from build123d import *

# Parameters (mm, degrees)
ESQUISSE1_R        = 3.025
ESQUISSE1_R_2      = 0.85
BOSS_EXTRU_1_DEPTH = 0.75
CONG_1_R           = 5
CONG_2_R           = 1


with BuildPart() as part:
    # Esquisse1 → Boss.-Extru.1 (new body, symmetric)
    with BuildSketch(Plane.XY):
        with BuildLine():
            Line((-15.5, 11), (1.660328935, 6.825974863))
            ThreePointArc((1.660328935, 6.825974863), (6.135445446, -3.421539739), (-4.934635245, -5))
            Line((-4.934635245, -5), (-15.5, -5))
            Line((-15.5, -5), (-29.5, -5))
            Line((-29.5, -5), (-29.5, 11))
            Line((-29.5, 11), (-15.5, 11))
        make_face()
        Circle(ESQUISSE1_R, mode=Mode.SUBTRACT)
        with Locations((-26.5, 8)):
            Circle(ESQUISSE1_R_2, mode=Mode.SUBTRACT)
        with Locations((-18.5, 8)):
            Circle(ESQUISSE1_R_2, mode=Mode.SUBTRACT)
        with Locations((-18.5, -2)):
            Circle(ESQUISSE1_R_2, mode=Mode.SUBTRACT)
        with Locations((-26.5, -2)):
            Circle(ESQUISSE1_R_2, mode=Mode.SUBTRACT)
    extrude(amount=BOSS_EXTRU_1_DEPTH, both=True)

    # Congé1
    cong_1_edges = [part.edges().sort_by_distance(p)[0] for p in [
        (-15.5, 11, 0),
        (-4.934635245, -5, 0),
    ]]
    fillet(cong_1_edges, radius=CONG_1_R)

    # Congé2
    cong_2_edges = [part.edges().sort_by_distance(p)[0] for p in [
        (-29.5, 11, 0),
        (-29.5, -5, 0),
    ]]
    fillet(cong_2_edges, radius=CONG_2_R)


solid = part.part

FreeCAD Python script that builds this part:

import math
import FreeCAD as App
import Part
import Sketcher
Q = App.Units.Quantity


def edges_at(feature, points):
    """Names of the edges that pass closest to the given points."""
    edges = feature.Shape.Edges
    near = lambda p: min(range(len(edges)), key=lambda i: edges[i].distToShape(Part.Vertex(*p))[0])
    return sorted({f"Edge{near(p) + 1}" for p in points})

doc = App.newDocument("Part")
body = doc.addObject("PartDesign::Body", "Body")

# Sketch on XY plane
sketch1 = body.newObject("Sketcher::SketchObject", "Sketch")
sketch1.AttachmentSupport = (doc.getObject("XY_Plane"), [""])
sketch1.MapMode = "FlatFace"
sketch1.addGeometry([
    Part.LineSegment(App.Vector(1.7, 6.8, 0), App.Vector(-15.5, 11, 0)),  # 0
    Part.LineSegment(App.Vector(-15.5, 11, 0), App.Vector(-29.5, 11, 0)),  # 1
    Part.LineSegment(App.Vector(-29.5, 11, 0), App.Vector(-29.5, -5, 0)),  # 2
    Part.LineSegment(App.Vector(-29.5, -5, 0), App.Vector(-4.9, -5, 0)),  # 3
    Part.ArcOfCircle(Part.Circle(App.Vector(0, 0, 0), App.Vector(0, 0, 1), 7), math.radians(-135), math.radians(76)),  # 4
    Part.Circle(App.Vector(0, 0, 0), App.Vector(0, 0, 1), 3),  # 5
    Part.Circle(App.Vector(-18.5, -2, 0), App.Vector(0, 0, 1), 0.8),  # 6
    Part.Circle(App.Vector(-26.5, -2, 0), App.Vector(0, 0, 1), 0.8),  # 7
    Part.Circle(App.Vector(-18.5, 8, 0), App.Vector(0, 0, 1), 0.8),  # 8
    Part.Circle(App.Vector(-26.5, 8, 0), App.Vector(0, 0, 1), 0.8),  # 9
], False)
sketch1.addConstraint([
    Sketcher.Constraint("Coincident", 0, 2, 1, 1),
    Sketcher.Constraint("Coincident", 1, 2, 2, 1),
    Sketcher.Constraint("Coincident", 2, 2, 3, 1),
    Sketcher.Constraint("Coincident", 3, 2, 4, 1),
    Sketcher.Constraint("Tangent", 4, 2, 0, 1),
    Sketcher.Constraint("Horizontal", 1),
    Sketcher.Constraint("Vertical", 2),
    Sketcher.Constraint("Horizontal", 3),
    Sketcher.Constraint("Coincident", 4, 3, -1, 1),
    Sketcher.Constraint("Coincident", 5, 3, -1, 1),
    Sketcher.Constraint("Equal", 6, 7),
    Sketcher.Constraint("Equal", 7, 8),
    Sketcher.Constraint("Equal", 8, 9),
    Sketcher.Constraint("Horizontal", 6, 3, 7, 3),
    Sketcher.Constraint("Horizontal", 8, 3, 9, 3),
    Sketcher.Constraint("Vertical", 6, 3, 8, 3),
    Sketcher.Constraint("Vertical", 7, 3, 9, 3),
    Sketcher.Constraint("Diameter", 6, Q("1.7 mm")),
    Sketcher.Constraint("Diameter", 5, Q("6.05 mm")),
    Sketcher.Constraint("DistanceX", 1, 2, 1, 1, Q("14 mm")),
    Sketcher.Constraint("DistanceY", 2, 2, 2, 1, Q("16 mm")),
    Sketcher.Constraint("DistanceY", 6, 3, -1, 1, Q("2 mm")),
    Sketcher.Constraint("DistanceY", -1, 1, 8, 3, Q("8 mm")),
    Sketcher.Constraint("DistanceY", -1, 1, 0, 2, Q("11 mm")),
    Sketcher.Constraint("Radius", 4, Q("7.025 mm")),
    Sketcher.Constraint("DistanceX", 7, 3, 6, 3, Q("8 mm")),
    Sketcher.Constraint("DistanceX", 8, 3, 0, 2, Q("3 mm")),
    Sketcher.Constraint("DistanceX", 6, 3, -1, 1, Q("18.5 mm")),
])
pad1 = body.newObject("PartDesign::Pad", "Pad")
pad1.Profile = sketch1
pad1.Length = 1.5
pad1.Midplane = True
doc.recompute()

fillet = body.newObject("PartDesign::Fillet", "Fillet")
fillet.Base = (pad1, edges_at(pad1, [(-15.5, 11, 0), (-4.935, -5, 0)]))
fillet.Radius = 5
doc.recompute()

fillet2 = body.newObject("PartDesign::Fillet", "Fillet001")
fillet2.Base = (fillet, edges_at(fillet, [(-29.5, 11, 0), (-29.5, -5, 0)]))
fillet2.Radius = 1

doc.recompute()
